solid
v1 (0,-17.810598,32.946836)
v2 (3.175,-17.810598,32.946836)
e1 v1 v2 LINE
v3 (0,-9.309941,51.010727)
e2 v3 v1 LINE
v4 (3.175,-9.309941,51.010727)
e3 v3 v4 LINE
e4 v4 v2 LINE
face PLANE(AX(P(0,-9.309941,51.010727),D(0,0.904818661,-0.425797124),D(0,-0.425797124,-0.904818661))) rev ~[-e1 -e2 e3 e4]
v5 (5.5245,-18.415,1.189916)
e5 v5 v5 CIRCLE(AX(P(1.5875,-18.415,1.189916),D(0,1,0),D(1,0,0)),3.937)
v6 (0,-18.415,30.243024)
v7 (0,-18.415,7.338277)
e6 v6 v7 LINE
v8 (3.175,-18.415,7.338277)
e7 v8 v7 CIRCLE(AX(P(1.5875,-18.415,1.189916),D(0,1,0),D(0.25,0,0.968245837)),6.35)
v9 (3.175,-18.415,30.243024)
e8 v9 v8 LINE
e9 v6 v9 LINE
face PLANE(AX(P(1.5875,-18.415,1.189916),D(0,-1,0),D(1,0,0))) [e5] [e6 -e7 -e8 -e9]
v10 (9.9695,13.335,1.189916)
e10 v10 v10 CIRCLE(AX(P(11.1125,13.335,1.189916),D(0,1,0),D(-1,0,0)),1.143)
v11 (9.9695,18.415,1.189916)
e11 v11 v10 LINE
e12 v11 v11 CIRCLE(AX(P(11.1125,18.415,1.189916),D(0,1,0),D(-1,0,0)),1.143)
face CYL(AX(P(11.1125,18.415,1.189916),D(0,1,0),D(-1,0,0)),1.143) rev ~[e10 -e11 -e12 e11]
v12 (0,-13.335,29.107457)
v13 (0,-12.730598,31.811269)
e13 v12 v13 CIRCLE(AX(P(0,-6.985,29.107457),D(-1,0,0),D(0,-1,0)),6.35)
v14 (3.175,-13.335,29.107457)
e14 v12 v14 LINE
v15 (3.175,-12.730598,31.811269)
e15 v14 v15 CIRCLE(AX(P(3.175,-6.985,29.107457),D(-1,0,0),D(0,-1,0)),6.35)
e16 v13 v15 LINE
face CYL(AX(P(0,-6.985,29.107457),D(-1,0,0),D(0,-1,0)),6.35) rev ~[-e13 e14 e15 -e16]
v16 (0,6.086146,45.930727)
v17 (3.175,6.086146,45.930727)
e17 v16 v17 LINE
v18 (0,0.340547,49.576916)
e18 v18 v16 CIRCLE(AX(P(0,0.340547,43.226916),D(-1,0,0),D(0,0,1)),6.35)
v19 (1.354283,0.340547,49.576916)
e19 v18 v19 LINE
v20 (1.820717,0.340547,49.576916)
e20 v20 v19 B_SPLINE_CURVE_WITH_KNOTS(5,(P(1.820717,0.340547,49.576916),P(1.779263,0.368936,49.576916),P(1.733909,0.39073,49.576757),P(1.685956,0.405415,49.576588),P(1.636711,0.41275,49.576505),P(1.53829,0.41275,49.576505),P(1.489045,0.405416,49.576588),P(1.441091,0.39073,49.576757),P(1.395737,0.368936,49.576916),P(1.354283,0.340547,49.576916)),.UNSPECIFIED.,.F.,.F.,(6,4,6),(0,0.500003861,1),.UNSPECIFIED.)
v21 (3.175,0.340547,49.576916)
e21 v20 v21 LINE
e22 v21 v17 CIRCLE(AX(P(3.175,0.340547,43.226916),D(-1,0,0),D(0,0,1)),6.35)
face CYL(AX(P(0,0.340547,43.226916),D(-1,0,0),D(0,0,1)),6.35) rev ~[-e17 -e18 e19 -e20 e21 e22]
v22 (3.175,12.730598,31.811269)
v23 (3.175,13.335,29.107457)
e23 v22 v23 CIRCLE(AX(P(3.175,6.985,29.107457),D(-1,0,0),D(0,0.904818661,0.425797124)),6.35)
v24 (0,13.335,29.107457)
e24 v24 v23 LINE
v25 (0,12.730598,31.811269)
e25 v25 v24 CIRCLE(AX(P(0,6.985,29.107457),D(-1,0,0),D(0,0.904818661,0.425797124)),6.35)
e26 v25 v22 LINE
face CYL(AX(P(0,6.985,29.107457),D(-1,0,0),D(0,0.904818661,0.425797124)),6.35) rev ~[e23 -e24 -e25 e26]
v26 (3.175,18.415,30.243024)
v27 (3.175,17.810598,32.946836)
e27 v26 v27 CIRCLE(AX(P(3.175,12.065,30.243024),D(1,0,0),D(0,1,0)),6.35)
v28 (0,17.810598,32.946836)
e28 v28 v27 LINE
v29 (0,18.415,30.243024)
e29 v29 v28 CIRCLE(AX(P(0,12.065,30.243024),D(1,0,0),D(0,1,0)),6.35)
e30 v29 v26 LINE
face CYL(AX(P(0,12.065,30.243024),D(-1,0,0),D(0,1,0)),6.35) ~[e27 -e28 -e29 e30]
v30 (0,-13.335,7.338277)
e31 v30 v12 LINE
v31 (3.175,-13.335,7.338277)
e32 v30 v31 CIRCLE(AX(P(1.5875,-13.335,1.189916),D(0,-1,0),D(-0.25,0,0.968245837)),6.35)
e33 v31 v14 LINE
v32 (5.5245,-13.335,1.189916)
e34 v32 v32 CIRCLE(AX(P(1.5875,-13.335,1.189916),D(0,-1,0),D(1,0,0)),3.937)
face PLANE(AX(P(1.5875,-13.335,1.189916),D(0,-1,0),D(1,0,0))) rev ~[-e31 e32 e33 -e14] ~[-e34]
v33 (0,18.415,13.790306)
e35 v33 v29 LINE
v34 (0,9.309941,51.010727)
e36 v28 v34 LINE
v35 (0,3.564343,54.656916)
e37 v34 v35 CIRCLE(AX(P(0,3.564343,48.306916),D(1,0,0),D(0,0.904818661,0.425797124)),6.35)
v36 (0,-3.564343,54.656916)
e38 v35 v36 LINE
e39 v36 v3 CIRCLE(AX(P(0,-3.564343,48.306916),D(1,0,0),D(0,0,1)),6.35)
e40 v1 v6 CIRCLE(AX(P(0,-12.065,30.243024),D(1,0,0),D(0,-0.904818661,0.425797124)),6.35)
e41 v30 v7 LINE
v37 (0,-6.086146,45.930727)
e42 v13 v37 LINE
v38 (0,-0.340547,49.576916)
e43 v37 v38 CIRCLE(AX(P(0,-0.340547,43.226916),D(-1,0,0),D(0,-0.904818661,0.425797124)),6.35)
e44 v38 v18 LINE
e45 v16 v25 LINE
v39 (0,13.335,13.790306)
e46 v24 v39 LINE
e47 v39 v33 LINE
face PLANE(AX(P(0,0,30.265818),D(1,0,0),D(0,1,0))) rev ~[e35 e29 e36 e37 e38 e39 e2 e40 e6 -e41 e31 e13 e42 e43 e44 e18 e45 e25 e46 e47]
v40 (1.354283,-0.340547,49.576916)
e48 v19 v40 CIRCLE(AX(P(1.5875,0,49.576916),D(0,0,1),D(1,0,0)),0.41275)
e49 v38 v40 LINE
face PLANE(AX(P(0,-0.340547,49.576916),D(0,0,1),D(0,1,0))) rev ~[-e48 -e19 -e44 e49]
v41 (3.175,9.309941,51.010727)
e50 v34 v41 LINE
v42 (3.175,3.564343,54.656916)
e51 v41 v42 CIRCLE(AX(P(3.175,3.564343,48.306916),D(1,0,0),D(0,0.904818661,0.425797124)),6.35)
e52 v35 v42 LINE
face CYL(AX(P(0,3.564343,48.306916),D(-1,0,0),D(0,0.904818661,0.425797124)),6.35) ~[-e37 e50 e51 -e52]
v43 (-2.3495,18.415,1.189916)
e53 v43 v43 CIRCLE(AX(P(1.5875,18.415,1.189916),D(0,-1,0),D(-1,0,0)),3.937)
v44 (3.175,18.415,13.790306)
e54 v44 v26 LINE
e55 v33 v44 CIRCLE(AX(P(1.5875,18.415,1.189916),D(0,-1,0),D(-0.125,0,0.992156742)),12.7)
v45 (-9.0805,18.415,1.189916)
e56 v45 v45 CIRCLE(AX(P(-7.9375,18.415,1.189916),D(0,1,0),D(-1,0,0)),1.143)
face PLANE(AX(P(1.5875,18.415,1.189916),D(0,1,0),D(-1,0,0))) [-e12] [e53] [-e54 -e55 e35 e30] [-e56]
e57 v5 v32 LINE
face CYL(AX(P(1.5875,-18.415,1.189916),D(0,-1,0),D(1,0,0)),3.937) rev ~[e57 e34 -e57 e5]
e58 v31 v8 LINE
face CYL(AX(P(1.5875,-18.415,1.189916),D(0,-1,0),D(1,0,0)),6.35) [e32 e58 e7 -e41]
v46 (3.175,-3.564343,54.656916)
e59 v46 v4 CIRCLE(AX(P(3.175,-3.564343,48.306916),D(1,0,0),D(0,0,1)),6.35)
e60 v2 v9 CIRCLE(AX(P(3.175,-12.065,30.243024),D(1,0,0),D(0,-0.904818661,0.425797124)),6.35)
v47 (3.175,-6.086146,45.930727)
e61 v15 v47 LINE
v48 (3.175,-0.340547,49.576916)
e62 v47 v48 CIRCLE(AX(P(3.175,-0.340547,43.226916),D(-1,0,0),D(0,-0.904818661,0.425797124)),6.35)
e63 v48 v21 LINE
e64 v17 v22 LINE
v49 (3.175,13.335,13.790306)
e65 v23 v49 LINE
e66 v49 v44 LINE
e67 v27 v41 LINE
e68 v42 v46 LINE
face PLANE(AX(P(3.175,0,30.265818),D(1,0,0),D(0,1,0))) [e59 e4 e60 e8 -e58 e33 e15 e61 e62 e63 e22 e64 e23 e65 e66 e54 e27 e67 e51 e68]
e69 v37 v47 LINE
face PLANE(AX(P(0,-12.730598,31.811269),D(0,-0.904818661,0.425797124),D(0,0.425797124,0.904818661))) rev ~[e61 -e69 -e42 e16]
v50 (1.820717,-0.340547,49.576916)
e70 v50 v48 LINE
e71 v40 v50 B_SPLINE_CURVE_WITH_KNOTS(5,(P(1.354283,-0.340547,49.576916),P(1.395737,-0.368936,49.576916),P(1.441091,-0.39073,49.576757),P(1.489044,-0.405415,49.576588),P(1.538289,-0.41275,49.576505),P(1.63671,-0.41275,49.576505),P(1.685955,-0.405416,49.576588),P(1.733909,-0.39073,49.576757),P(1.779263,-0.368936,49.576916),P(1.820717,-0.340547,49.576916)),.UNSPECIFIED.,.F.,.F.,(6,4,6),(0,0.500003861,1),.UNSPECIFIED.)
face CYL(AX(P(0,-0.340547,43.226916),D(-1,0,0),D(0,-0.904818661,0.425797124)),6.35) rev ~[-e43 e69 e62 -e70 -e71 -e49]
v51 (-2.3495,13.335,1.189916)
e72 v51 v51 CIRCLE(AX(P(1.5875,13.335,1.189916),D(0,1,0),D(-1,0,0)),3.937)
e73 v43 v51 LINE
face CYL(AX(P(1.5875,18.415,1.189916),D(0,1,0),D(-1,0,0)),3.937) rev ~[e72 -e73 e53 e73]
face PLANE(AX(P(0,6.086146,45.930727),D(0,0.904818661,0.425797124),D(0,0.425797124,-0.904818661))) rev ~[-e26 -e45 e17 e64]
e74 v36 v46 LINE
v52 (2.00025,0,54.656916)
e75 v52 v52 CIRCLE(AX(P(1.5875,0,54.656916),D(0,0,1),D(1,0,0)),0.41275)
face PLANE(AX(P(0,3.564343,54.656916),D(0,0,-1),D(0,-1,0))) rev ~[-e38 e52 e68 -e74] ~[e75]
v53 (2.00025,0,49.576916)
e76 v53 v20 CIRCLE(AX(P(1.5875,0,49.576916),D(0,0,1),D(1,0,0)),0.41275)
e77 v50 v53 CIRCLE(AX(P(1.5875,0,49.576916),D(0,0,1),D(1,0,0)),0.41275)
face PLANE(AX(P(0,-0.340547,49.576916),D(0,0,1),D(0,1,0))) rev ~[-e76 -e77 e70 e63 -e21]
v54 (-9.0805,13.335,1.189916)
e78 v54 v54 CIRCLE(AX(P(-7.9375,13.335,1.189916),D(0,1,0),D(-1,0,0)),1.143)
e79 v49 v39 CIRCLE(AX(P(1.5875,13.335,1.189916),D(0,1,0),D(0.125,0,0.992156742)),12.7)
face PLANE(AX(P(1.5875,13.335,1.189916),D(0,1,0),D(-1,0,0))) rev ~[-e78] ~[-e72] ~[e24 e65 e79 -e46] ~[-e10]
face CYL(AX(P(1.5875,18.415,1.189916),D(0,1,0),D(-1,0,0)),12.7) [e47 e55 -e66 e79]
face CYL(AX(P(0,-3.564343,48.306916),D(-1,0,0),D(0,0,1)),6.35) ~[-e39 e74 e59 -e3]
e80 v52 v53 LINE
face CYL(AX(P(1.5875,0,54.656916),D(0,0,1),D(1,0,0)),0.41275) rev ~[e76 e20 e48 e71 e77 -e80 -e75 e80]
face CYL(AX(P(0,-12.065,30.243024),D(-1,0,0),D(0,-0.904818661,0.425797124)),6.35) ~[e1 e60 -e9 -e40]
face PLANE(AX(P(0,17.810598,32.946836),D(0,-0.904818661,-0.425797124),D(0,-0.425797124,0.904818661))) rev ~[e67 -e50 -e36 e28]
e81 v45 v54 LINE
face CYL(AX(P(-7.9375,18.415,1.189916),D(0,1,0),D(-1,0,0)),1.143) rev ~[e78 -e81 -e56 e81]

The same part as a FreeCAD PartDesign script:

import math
import FreeCAD as App
import Part
import Sketcher

V = App.Vector
Q = App.Units.Quantity

doc = App.newDocument("Part")
body = doc.addObject("PartDesign::Body", "Body")

# Sketch on YZ plane
sketch1 = body.newObject("Sketcher::SketchObject", "Sketch")
sketch1.AttachmentSupport = (doc.getObject("YZ_Plane"), [""])
sketch1.MapMode = "FlatFace"
sketch1.addGeometry(Part.LineSegment(V(-18.415, 5.126916, 0), V(-13.335, 5.126916, 0)), False)
sketch1.addGeometry(Part.LineSegment(V(-13.335, 5.126916, 0), V(-13.335, 29.107457, 0)), False)
sketch1.addGeometry(Part.ArcOfCircle(Part.Circle(V(-6.985, 29.107457, 0), V(0, 0, 1), 6.35), math.radians(154.798871), math.radians(180)), False)
sketch1.addGeometry(Part.LineSegment(V(-12.730598, 31.811269, 0), V(-6.086146, 45.930727, 0)), False)
sketch1.addGeometry(Part.ArcOfCircle(Part.Circle(V(-0.340547, 43.226916, 0), V(0, 0, 1), 6.35), math.radians(90), math.radians(154.798871)), False)
sketch1.addGeometry(Part.LineSegment(V(-0.340547, 49.576916, 0), V(0.340547, 49.576916, 0)), False)
sketch1.addGeometry(Part.ArcOfCircle(Part.Circle(V(0.340547, 43.226916, 0), V(0, 0, 1), 6.35), math.radians(25.201129), math.radians(90)), False)
sketch1.addGeometry(Part.LineSegment(V(6.086146, 45.930727, 0), V(12.730598, 31.811269, 0)), False)
sketch1.addGeometry(Part.ArcOfCircle(Part.Circle(V(6.985, 29.107457, 0), V(0, 0, 1), 6.35), math.radians(0), math.radians(25.201129)), False)
sketch1.addGeometry(Part.LineSegment(V(13.335, 29.107457, 0), V(13.335, 5.126916, 0)), False)
sketch1.addGeometry(Part.LineSegment(V(13.335, 5.126916, 0), V(18.415, 5.126916, 0)), False)
sketch1.addGeometry(Part.LineSegment(V(18.415, 5.126916, 0), V(18.415, 30.243024, 0)), False)
sketch1.addGeometry(Part.ArcOfCircle(Part.Circle(V(12.065, 30.243024, 0), V(0, 0, 1), 6.35), math.radians(0), math.radians(25.201129)), False)
sketch1.addGeometry(Part.LineSegment(V(17.810598, 32.946836, 0), V(9.309941, 51.010727, 0)), False)
sketch1.addGeometry(Part.ArcOfCircle(Part.Circle(V(3.564343, 48.306916, 0), V(0, 0, 1), 6.35), math.radians(25.201129), math.radians(90)), False)
sketch1.addGeometry(Part.LineSegment(V(3.564343, 54.656916, 0), V(-3.564343, 54.656916, 0)), False)
sketch1.addGeometry(Part.ArcOfCircle(Part.Circle(V(-3.564343, 48.306916, 0), V(0, 0, 1), 6.35), math.radians(90), math.radians(154.798871)), False)
sketch1.addGeometry(Part.LineSegment(V(-9.309941, 51.010727, 0), V(-17.810598, 32.946836, 0)), False)
sketch1.addGeometry(Part.ArcOfCircle(Part.Circle(V(-12.065, 30.243024, 0), V(0, 0, 1), 6.35), math.radians(154.798871), math.radians(180)), False)
sketch1.addGeometry(Part.LineSegment(V(-18.415, 30.243024, 0), V(-18.415, 5.126916, 0)), False)
sketch1.addConstraint(Sketcher.Constraint("Coincident", 0, 2, 1, 1))
sketch1.addConstraint(Sketcher.Constraint("Tangent", 1, 2, 2, 2))
sketch1.addConstraint(Sketcher.Constraint("Tangent", 2, 1, 3, 1))
sketch1.addConstraint(Sketcher.Constraint("Tangent", 3, 2, 4, 2))
sketch1.addConstraint(Sketcher.Constraint("Tangent", 4, 1, 5, 1))
sketch1.addConstraint(Sketcher.Constraint("Tangent", 5, 2, 6, 2))
sketch1.addConstraint(Sketcher.Constraint("Tangent", 6, 1, 7, 1))
sketch1.addConstraint(Sketcher.Constraint("Tangent", 7, 2, 8, 2))
sketch1.addConstraint(Sketcher.Constraint("Tangent", 8, 1, 9, 1))
sketch1.addConstraint(Sketcher.Constraint("Coincident", 9, 2, 10, 1))
sketch1.addConstraint(Sketcher.Constraint("Coincident", 10, 2, 11, 1))
sketch1.addConstraint(Sketcher.Constraint("Tangent", 11, 2, 12, 1))
sketch1.addConstraint(Sketcher.Constraint("Tangent", 12, 2, 13, 1))
sketch1.addConstraint(Sketcher.Constraint("Tangent", 13, 2, 14, 1))
sketch1.addConstraint(Sketcher.Constraint("Tangent", 14, 2, 15, 1))
sketch1.addConstraint(Sketcher.Constraint("Tangent", 15, 2, 16, 1))
sketch1.addConstraint(Sketcher.Constraint("Tangent", 16, 2, 17, 1))
sketch1.addConstraint(Sketcher.Constraint("Tangent", 17, 2, 18, 1))
sketch1.addConstraint(Sketcher.Constraint("Tangent", 18, 2, 19, 1))
sketch1.addConstraint(Sketcher.Constraint("Coincident", 19, 2, 0, 1))
sketch1.addConstraint(Sketcher.Constraint("Horizontal", 0))
sketch1.addConstraint(Sketcher.Constraint("Vertical", 1))
sketch1.addConstraint(Sketcher.Constraint("Horizontal", 5))
sketch1.addConstraint(Sketcher.Constraint("Vertical", 9))
sketch1.addConstraint(Sketcher.Constraint("Horizontal", 10))
sketch1.addConstraint(Sketcher.Constraint("Vertical", 11))
sketch1.addConstraint(Sketcher.Constraint("Horizontal", 15))
sketch1.addConstraint(Sketcher.Constraint("Vertical", 19))
sketch1.addConstraint(Sketcher.Constraint("Equal", 2, 4))
sketch1.addConstraint(Sketcher.Constraint("Equal", 4, 6))
sketch1.addConstraint(Sketcher.Constraint("Equal", 6, 8))
sketch1.addConstraint(Sketcher.Constraint("Equal", 8, 12))
sketch1.addConstraint(Sketcher.Constraint("Equal", 12, 14))
sketch1.addConstraint(Sketcher.Constraint("Equal", 14, 16))
sketch1.addConstraint(Sketcher.Constraint("Equal", 16, 18))
sketch1.addConstraint(Sketcher.Constraint("Symmetric", 2, 3, 8, 3, -2))
sketch1.addConstraint(Sketcher.Constraint("Symmetric", 12, 3, 18, 3, -2))
sketch1.addConstraint(Sketcher.Constraint("Parallel", 7, 13))
sketch1.addConstraint(Sketcher.Constraint("Parallel", 3, 17))
sketch1.addConstraint(Sketcher.Constraint("Horizontal", 3, 2, 6, 1))
sketch1.addConstraint(Sketcher.Constraint("Horizontal", 0, 2, 9, 2))
sketch1.addConstraint(Sketcher.Constraint("Radius", 2, Q("0.25 in")))
sketch1.addConstraint(Sketcher.Constraint("DistanceX", 0, 1, 0, 2, Q("0.2 in")))
sketch1.addConstraint(Sketcher.Constraint("DistanceX", 0, 2, 12, 3, Q("1 in")))
sketch1.addConstraint(Sketcher.Constraint("DistanceY", 6, 3, 14, 3, Q("0.2 in")))
sketch1.addConstraint(Sketcher.Constraint("DistanceY", 0, 2, 4, 3, Q("1.5 in")))
sketch1.addConstraint(Sketcher.Constraint("Distance", 13, 19.964102))
sketch1.addConstraint(Sketcher.Constraint("DistanceY", 1, 1, 1, 2, 23.980541))
sketch1.addConstraint(Sketcher.Constraint("DistanceY", 11, 1, 11, 2, 25.116108))
sketch1.addConstraint(Sketcher.Constraint("DistanceY", -1, 1, 2, 1, 31.811269))
pad1 = body.newObject("PartDesign::Pad", "Pad")
pad1.Profile = sketch1
pad1.Length = Q("0.125 in")

# Sketch on XZ plane
sketch2 = body.newObject("Sketcher::SketchObject", "Sketch001")
sketch2.AttachmentSupport = (doc.getObject("XZ_Plane"), [""])
sketch2.MapMode = "FlatFace"
sketch2.AttachmentOffset = App.Placement(V(0, 0, 0.725 * 25.4), App.Rotation())
sketch2.addGeometry(Part.Circle(V(1.5875, 1.189916, 0), V(0, 0, 1), 6.35), False)
sketch2.addGeometry(Part.Circle(V(1.5875, 1.189916, 0), V(0, 0, 1), 3.937), False)
sketch2.addConstraint(Sketcher.Constraint("Coincident", 1, 3, 0, 3))
sketch2.addConstraint(Sketcher.Constraint("Diameter", 0, Q("0.5 in")))
sketch2.addConstraint(Sketcher.Constraint("Diameter", 1, Q("0.31 in")))
sketch2.addConstraint(Sketcher.Constraint("DistanceX", -1, 1, 0, 3, Q("0.0625 in")))
sketch2.addConstraint(Sketcher.Constraint("DistanceY", -1, 1, 0, 3, 1.189916))
pad2 = body.newObject("PartDesign::Pad", "Pad001")
pad2.Profile = sketch2
pad2.Length = Q("0.2 in")
pad2.Reversed = True

# Sketch on XZ plane
sketch3 = body.newObject("Sketcher::SketchObject", "Sketch002")
sketch3.AttachmentSupport = (doc.getObject("XZ_Plane"), [""])
sketch3.MapMode = "FlatFace"
sketch3.AttachmentOffset = App.Placement(V(0, 0, -0.725 * 25.4), App.Rotation())
sketch3.addGeometry(Part.Circle(V(1.5875, 1.189916, 0), V(0, 0, 1), 12.7), False)
sketch3.addGeometry(Part.Circle(V(11.1125, 1.189916, 0), V(0, 0, 1), 1.143), False)
sketch3.addGeometry(Part.Circle(V(1.5875, 1.189916, 0), V(0, 0, 1), 3.937), False)
sketch3.addGeometry(Part.Circle(V(-7.9375, 1.189916, 0), V(0, 0, 1), 1.143), False)
sketch3.addConstraint(Sketcher.Constraint("Coincident", 2, 3, 0, 3))
sketch3.addConstraint(Sketcher.Constraint("Equal", 1, 3))
sketch3.addConstraint(Sketcher.Constraint("Horizontal", 0, 3, 1, 3))
sketch3.addConstraint(Sketcher.Constraint("Horizontal", 2, 3, 3, 3))
sketch3.addConstraint(Sketcher.Constraint("Diameter", 0, Q("1 in")))
sketch3.addConstraint(Sketcher.Constraint("Diameter", 1, Q("0.09 in")))
sketch3.addConstraint(Sketcher.Constraint("Diameter", 2, Q("0.31 in")))
sketch3.addConstraint(Sketcher.Constraint("DistanceX", 3, 3, 1, 3, Q("0.75 in")))
sketch3.addConstraint(Sketcher.Constraint("DistanceX", -1, 1, 0, 3, Q("0.0625 in")))
sketch3.addConstraint(Sketcher.Constraint("DistanceX", -1, 1, 1, 3, Q("0.4375 in")))
sketch3.addConstraint(Sketcher.Constraint("DistanceY", -1, 1, 0, 3, 1.189916))
pad3 = body.newObject("PartDesign::Pad", "Pad002")
pad3.Profile = sketch3
pad3.Length = Q("0.2 in")

# Sketch on XY plane
sketch4 = body.newObject("Sketcher::SketchObject", "Sketch003")
sketch4.AttachmentSupport = (doc.getObject("XY_Plane"), [""])
sketch4.MapMode = "FlatFace"
sketch4.AttachmentOffset = App.Placement(V(0, 0, 54.656916), App.Rotation())
sketch4.addGeometry(Part.Circle(V(1.5875, 0, 0), V(0, 0, 1), 0.41275), False)
sketch4.addConstraint(Sketcher.Constraint("PointOnObject", 0, 3, -1))
sketch4.addConstraint(Sketcher.Constraint("Diameter", 0, Q("0.0325 in")))
sketch4.addConstraint(Sketcher.Constraint("DistanceX", -1, 1, 0, 3, Q("0.0625 in")))
pocket1 = body.newObject("PartDesign::Pocket", "Pocket")
pocket1.Profile = sketch4
pocket1.Type = "ThroughAll"

doc.recompute()
